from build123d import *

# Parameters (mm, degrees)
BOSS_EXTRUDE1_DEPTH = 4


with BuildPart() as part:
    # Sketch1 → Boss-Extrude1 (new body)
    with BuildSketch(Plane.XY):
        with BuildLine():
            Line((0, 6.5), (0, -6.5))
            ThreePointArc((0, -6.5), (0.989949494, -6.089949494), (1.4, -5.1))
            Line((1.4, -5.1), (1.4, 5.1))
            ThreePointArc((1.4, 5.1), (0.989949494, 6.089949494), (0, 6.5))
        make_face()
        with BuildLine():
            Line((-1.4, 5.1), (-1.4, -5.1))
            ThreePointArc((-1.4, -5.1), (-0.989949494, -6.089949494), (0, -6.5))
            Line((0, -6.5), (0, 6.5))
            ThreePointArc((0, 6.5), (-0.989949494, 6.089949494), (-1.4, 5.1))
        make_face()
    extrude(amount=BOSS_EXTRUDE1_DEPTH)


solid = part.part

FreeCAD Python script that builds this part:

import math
import FreeCAD as App
import Part
import Sketcher
from FreeCAD import Vector
Q = App.Units.Quantity

doc = App.newDocument("Part")
body = doc.addObject("PartDesign::Body", "Body")

# Sketch on XY plane
sketch1 = body.newObject("Sketcher::SketchObject", "Sketch")
sketch1.AttachmentSupport = (doc.getObject("XY_Plane"), [""])
sketch1.MapMode = "FlatFace"
sketch1.addGeometry([
    Part.ArcOfCircle(Part.Circle(Vector(0, -5.1, 0), Vector(0, 0, 1), 1.4), math.radians(-90), math.radians(0)),  # 0
    Part.LineSegment(Vector(1.4, -5.1, 0), Vector(1.4, 5.1, 0)),  # 1
    Part.ArcOfCircle(Part.Circle(Vector(0, 5.1, 0), Vector(0, 0, 1), 1.4), math.radians(0), math.radians(90)),  # 2
    Part.ArcOfCircle(Part.Circle(Vector(0, 5.1, 0), Vector(0, 0, 1), 1.4), math.radians(90), math.radians(180)),  # 3
    Part.LineSegment(Vector(-1.4, 5.1, 0), Vector(-1.4, -5.1, 0)),  # 4
    Part.ArcOfCircle(Part.Circle(Vector(0, -5.1, 0), Vector(0, 0, 1), 1.4), math.radians(180), math.radians(270)),  # 5
], False)
sketch1.addConstraint([
    Sketcher.Constraint("Tangent", 0, 2, 1, 1),
    Sketcher.Constraint("Tangent", 1, 2, 2, 1),
    Sketcher.Constraint("Tangent", 2, 2, 3, 1),
    Sketcher.Constraint("Tangent", 3, 2, 4, 1),
    Sketcher.Constraint("Tangent", 4, 2, 5, 1),
    Sketcher.Constraint("Tangent", 5, 2, 0, 1),
    Sketcher.Constraint("Vertical", 1),
    Sketcher.Constraint("Vertical", 4),
    Sketcher.Constraint("Equal", 0, 2),
    Sketcher.Constraint("Equal", 2, 3),
    Sketcher.Constraint("Symmetric", 0, 3, 2, 3, -1, 1),
    Sketcher.Constraint("PointOnObject", 2, 2, -2),
    Sketcher.Constraint("PointOnObject", 5, 2, -2),
    Sketcher.Constraint("Radius", 0, Q("1.4 mm")),
    Sketcher.Constraint("DistanceY", 1, 1, 1, 2, Q("10.2 mm")),
])
pad1 = body.newObject("PartDesign::Pad", "Pad")
pad1.Profile = sketch1
pad1.Length = 4

doc.recompute()
